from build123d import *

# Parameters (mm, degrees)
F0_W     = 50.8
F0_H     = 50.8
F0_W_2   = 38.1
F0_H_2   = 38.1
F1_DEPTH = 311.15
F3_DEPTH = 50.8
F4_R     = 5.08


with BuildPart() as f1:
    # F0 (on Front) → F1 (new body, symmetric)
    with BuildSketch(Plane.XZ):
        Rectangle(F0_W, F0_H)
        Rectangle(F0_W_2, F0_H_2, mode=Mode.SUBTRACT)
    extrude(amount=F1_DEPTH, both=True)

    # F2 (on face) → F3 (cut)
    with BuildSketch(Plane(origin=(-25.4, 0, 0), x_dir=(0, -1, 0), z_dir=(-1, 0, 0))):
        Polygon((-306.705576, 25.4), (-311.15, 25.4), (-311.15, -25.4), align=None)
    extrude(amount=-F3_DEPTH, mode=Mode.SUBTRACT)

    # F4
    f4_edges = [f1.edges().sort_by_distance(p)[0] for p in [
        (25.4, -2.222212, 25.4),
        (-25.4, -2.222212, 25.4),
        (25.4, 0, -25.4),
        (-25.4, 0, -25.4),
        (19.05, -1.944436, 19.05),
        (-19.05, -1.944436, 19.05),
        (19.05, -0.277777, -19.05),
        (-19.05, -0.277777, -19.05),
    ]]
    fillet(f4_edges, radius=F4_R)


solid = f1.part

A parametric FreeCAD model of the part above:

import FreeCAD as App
import Part
import Sketcher

V = App.Vector
Q = App.Units.Quantity


def edges_at(feature, points):
    """Names of the edges that pass closest to the given points."""
    edges = feature.Shape.Edges
    near = lambda p: min(range(len(edges)), key=lambda i: edges[i].distToShape(Part.Vertex(*p))[0])
    return sorted({f"Edge{near(p) + 1}" for p in points})

doc = App.newDocument("Part")
body = doc.addObject("PartDesign::Body", "Body")

# Sketch on XZ plane
sketch1 = doc.addObject("Sketcher::SketchObject", "Sketch")
body.addObject(sketch1)
sketch1.AttachmentSupport = (doc.XZ_Plane, [""])
sketch1.MapMode = "FlatFace"
sketch1.addGeometry([
    Part.LineSegment(V(-25, 25, 0), V(-25, -25, 0)),  # 0
    Part.LineSegment(V(-25, -25, 0), V(25, -25, 0)),  # 1
    Part.LineSegment(V(25, -25, 0), V(25, 25, 0)),  # 2
    Part.LineSegment(V(25, 25, 0), V(-25, 25, 0)),  # 3
    Part.LineSegment(V(19, -19, 0), V(-19, -19, 0)),  # 4
    Part.LineSegment(V(-19, -19, 0), V(-19, 19, 0)),  # 5
    Part.LineSegment(V(-19, 19, 0), V(19, 19, 0)),  # 6
    Part.LineSegment(V(19, 19, 0), V(19, -19, 0)),  # 7
], False)
sketch1.addConstraint([
    Sketcher.Constraint("Coincident", 0, 2, 1, 1),
    Sketcher.Constraint("Coincident", 1, 2, 2, 1),
    Sketcher.Constraint("Coincident", 2, 2, 3, 1),
    Sketcher.Constraint("Coincident", 3, 2, 0, 1),
    Sketcher.Constraint("Coincident", 4, 2, 5, 1),
    Sketcher.Constraint("Coincident", 5, 2, 6, 1),
    Sketcher.Constraint("Coincident", 6, 2, 7, 1),
    Sketcher.Constraint("Coincident", 7, 2, 4, 1),
    Sketcher.Constraint("Vertical", 0),
    Sketcher.Constraint("Horizontal", 1),
    Sketcher.Constraint("Vertical", 2),
    Sketcher.Constraint("Horizontal", 3),
    Sketcher.Constraint("Horizontal", 4),
    Sketcher.Constraint("Vertical", 5),
    Sketcher.Constraint("Horizontal", 6),
    Sketcher.Constraint("Vertical", 7),
    Sketcher.Constraint("Symmetric", 0, 2, 2, 2, -1, 1),
    Sketcher.Constraint("Symmetric", 4, 2, 6, 2, -1, 1),
    Sketcher.Constraint("Equal", 3, 0),
    Sketcher.Constraint("Equal", 6, 5),
    Sketcher.Constraint("DistanceX", 1, 1, 1, 2, Q("2 in")),
    Sketcher.Constraint("DistanceX", 4, 2, 4, 1, Q("1.5 in")),
])
pad1 = doc.addObject("PartDesign::Pad", "Pad")
body.addObject(pad1)
pad1.Profile = sketch1
pad1.Length = Q("24.5 in")
pad1.Midplane = True

# Sketch on YZ plane
sketch2 = doc.addObject("Sketcher::SketchObject", "Sketch001")
body.addObject(sketch2)
sketch2.AttachmentSupport = (doc.YZ_Plane, [""])
sketch2.MapMode = "FlatFace"
sketch2.AttachmentOffset = App.Placement(V(0, 0, -1 * 25.4), App.Rotation())
sketch2.addGeometry([
    Part.LineSegment(V(306.7, 25.4, 0), V(311.1, 25.4, 0)),
    Part.LineSegment(V(311.1, 25.4, 0), V(311.1, -25.4, 0)),
    Part.LineSegment(V(311.1, -25.4, 0), V(306.7, 25.4, 0)),
], False)
sketch2.addConstraint([
    Sketcher.Constraint("Coincident", 0, 2, 1, 1),
    Sketcher.Constraint("Coincident", 1, 2, 2, 1),
    Sketcher.Constraint("Coincident", 2, 2, 0, 1),
    Sketcher.Constraint("Horizontal", 0),
    Sketcher.Constraint("Vertical", 1),
    Sketcher.Constraint("DistanceY", 1, 2, 1, 1, Q("2 in")),
    Sketcher.Constraint("DistanceY", -1, 1, 0, 2, Q("1 in")),
    Sketcher.Constraint("Angle", 2, Q("95 deg")),
    Sketcher.Constraint("DistanceX", -1, 1, 0, 2, Q("12.25 in")),
])
pocket1 = doc.addObject("PartDesign::Pocket", "Pocket")
body.addObject(pocket1)
pocket1.Profile = sketch2
pocket1.Length = Q("2 in")
pocket1.Reversed = True
doc.recompute()

fillet = doc.addObject("PartDesign::Fillet", "Fillet")
body.addObject(fillet)
fillet.Base = (pocket1, edges_at(pocket1, [
    (25.4, -2.222, 25.4),
    (-25.4, -2.222, 25.4),
    (25.4, 0, -25.4),
    (-25.4, 0, -25.4),
    (19.05, -1.944, 19.05),
    (-19.05, -1.944, 19.05),
    (19.05, -0.278, -19.05),
    (-19.05, -0.278, -19.05),
]))
fillet.Radius = Q("0.2 in")

doc.recompute()
